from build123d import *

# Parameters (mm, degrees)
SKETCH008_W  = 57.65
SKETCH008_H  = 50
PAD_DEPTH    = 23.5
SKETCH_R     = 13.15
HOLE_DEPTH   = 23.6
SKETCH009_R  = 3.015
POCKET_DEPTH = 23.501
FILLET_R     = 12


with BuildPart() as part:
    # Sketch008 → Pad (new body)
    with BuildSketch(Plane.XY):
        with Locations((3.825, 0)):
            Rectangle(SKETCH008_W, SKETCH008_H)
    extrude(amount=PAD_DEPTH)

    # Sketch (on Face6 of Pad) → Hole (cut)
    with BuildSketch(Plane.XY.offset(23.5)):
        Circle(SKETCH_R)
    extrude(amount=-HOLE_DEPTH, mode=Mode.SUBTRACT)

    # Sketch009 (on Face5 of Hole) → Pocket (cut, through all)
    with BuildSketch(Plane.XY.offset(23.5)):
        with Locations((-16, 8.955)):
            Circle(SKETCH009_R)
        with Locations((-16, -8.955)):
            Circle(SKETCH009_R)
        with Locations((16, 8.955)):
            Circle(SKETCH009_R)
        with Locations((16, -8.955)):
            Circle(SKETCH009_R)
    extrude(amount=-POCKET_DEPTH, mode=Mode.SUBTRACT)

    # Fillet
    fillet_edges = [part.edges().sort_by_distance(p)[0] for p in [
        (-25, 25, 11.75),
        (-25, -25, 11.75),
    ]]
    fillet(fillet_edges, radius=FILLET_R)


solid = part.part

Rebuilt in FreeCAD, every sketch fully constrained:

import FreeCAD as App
import Part
import Sketcher
Q = App.Units.Quantity


def edges_at(feature, points):
    """Names of the edges that pass closest to the given points."""
    edges = feature.Shape.Edges
    near = lambda p: min(range(len(edges)), key=lambda i: edges[i].distToShape(Part.Vertex(*p))[0])
    return sorted({f"Edge{near(p) + 1}" for p in points})

doc = App.newDocument("Part")
body = doc.addObject("PartDesign::Body", "Body")

# Sketch on XY plane
sketch1 = body.newObject("Sketcher::SketchObject", "Sketch")
sketch1.AttachmentSupport = (doc.getObject("XY_Plane"), [""])
sketch1.MapMode = "FlatFace"
sketch1.addGeometry([
    Part.LineSegment(App.Vector(-25, 25, 0), App.Vector(-25, -25, 0)),
    Part.LineSegment(App.Vector(-25, -25, 0), App.Vector(32.65, -25, 0)),
    Part.LineSegment(App.Vector(32.65, -25, 0), App.Vector(32.65, 25, 0)),
    Part.LineSegment(App.Vector(32.65, 25, 0), App.Vector(-25, 25, 0)),
], False)
sketch1.addConstraint([
    Sketcher.Constraint("Coincident", 0, 2, 1, 1),
    Sketcher.Constraint("Coincident", 1, 2, 2, 1),
    Sketcher.Constraint("Coincident", 2, 2, 3, 1),
    Sketcher.Constraint("Coincident", 3, 2, 0, 1),
    Sketcher.Constraint("Vertical", 0),
    Sketcher.Constraint("Horizontal", 1),
    Sketcher.Constraint("Vertical", 2),
    Sketcher.Constraint("Horizontal", 3),
    Sketcher.Constraint("DistanceY", 0, 2, 0, 1, Q("50 mm")),
    Sketcher.Constraint("DistanceX", 0, 2, -1, 1, Q("25 mm")),
    Sketcher.Constraint("DistanceY", 0, 2, -1, 1, Q("25 mm")),
    Sketcher.Constraint("DistanceX", 1, 1, 1, 2, Q("57.65 mm")),
])
pad1 = body.newObject("PartDesign::Pad", "Pad")
pad1.Profile = sketch1
pad1.Length = 23.5

# Sketch on XY plane
sketch2 = body.newObject("Sketcher::SketchObject", "Sketch001")
sketch2.AttachmentSupport = (doc.getObject("XY_Plane"), [""])
sketch2.MapMode = "FlatFace"
sketch2.AttachmentOffset = App.Placement(App.Vector(0, 0, 23.5), App.Rotation())
sketch2.addGeometry(Part.Circle(App.Vector(0, 0, 0), App.Vector(0, 0, 1), 13.15), False)
sketch2.addConstraint([
    Sketcher.Constraint("Coincident", 0, 3, -1, 1),
    Sketcher.Constraint("Diameter", 0, Q("26.3 mm")),
])
pocket1 = body.newObject("PartDesign::Pocket", "Pocket")
pocket1.Profile = sketch2
pocket1.Length = 23.6

# Sketch on XY plane
sketch3 = body.newObject("Sketcher::SketchObject", "Sketch002")
sketch3.AttachmentSupport = (doc.getObject("XY_Plane"), [""])
sketch3.MapMode = "FlatFace"
sketch3.AttachmentOffset = App.Placement(App.Vector(0, 0, 23.5), App.Rotation())
sketch3.addGeometry([
    Part.Circle(App.Vector(-16, 8.955, 0), App.Vector(0, 0, 1), 3.015),
    Part.Circle(App.Vector(-16, -8.955, 0), App.Vector(0, 0, 1), 3.015),
    Part.Circle(App.Vector(16, 8.955, 0), App.Vector(0, 0, 1), 3.015),
    Part.Circle(App.Vector(16, -8.955, 0), App.Vector(0, 0, 1), 3.015),
], False)
sketch3.addConstraint([
    Sketcher.Constraint("Equal", 0, 1),
    Sketcher.Constraint("Equal", 1, 2),
    Sketcher.Constraint("Equal", 2, 3),
    Sketcher.Constraint("Symmetric", 1, 3, 2, 3, -1, 1),
    Sketcher.Constraint("Symmetric", 0, 3, 3, 3, -1, 1),
    Sketcher.Constraint("Symmetric", 0, 3, 2, 3, -2),
    Sketcher.Constraint("Diameter", 0, Q("6.03 mm")),
    Sketcher.Constraint("DistanceX", 0, 3, -1, 1, Q("16 mm")),
    Sketcher.Constraint("DistanceY", 1, 3, 0, 3, Q("17.91 mm")),
])
pocket2 = body.newObject("PartDesign::Pocket", "Pocket001")
pocket2.Profile = sketch3
pocket2.Type = "ThroughAll"
doc.recompute()

fillet = body.newObject("PartDesign::Fillet", "Fillet")
fillet.Base = (pocket2, edges_at(pocket2, [(-25, 25, 11.75), (-25, -25, 11.75)]))
fillet.Radius = 12

doc.recompute()
